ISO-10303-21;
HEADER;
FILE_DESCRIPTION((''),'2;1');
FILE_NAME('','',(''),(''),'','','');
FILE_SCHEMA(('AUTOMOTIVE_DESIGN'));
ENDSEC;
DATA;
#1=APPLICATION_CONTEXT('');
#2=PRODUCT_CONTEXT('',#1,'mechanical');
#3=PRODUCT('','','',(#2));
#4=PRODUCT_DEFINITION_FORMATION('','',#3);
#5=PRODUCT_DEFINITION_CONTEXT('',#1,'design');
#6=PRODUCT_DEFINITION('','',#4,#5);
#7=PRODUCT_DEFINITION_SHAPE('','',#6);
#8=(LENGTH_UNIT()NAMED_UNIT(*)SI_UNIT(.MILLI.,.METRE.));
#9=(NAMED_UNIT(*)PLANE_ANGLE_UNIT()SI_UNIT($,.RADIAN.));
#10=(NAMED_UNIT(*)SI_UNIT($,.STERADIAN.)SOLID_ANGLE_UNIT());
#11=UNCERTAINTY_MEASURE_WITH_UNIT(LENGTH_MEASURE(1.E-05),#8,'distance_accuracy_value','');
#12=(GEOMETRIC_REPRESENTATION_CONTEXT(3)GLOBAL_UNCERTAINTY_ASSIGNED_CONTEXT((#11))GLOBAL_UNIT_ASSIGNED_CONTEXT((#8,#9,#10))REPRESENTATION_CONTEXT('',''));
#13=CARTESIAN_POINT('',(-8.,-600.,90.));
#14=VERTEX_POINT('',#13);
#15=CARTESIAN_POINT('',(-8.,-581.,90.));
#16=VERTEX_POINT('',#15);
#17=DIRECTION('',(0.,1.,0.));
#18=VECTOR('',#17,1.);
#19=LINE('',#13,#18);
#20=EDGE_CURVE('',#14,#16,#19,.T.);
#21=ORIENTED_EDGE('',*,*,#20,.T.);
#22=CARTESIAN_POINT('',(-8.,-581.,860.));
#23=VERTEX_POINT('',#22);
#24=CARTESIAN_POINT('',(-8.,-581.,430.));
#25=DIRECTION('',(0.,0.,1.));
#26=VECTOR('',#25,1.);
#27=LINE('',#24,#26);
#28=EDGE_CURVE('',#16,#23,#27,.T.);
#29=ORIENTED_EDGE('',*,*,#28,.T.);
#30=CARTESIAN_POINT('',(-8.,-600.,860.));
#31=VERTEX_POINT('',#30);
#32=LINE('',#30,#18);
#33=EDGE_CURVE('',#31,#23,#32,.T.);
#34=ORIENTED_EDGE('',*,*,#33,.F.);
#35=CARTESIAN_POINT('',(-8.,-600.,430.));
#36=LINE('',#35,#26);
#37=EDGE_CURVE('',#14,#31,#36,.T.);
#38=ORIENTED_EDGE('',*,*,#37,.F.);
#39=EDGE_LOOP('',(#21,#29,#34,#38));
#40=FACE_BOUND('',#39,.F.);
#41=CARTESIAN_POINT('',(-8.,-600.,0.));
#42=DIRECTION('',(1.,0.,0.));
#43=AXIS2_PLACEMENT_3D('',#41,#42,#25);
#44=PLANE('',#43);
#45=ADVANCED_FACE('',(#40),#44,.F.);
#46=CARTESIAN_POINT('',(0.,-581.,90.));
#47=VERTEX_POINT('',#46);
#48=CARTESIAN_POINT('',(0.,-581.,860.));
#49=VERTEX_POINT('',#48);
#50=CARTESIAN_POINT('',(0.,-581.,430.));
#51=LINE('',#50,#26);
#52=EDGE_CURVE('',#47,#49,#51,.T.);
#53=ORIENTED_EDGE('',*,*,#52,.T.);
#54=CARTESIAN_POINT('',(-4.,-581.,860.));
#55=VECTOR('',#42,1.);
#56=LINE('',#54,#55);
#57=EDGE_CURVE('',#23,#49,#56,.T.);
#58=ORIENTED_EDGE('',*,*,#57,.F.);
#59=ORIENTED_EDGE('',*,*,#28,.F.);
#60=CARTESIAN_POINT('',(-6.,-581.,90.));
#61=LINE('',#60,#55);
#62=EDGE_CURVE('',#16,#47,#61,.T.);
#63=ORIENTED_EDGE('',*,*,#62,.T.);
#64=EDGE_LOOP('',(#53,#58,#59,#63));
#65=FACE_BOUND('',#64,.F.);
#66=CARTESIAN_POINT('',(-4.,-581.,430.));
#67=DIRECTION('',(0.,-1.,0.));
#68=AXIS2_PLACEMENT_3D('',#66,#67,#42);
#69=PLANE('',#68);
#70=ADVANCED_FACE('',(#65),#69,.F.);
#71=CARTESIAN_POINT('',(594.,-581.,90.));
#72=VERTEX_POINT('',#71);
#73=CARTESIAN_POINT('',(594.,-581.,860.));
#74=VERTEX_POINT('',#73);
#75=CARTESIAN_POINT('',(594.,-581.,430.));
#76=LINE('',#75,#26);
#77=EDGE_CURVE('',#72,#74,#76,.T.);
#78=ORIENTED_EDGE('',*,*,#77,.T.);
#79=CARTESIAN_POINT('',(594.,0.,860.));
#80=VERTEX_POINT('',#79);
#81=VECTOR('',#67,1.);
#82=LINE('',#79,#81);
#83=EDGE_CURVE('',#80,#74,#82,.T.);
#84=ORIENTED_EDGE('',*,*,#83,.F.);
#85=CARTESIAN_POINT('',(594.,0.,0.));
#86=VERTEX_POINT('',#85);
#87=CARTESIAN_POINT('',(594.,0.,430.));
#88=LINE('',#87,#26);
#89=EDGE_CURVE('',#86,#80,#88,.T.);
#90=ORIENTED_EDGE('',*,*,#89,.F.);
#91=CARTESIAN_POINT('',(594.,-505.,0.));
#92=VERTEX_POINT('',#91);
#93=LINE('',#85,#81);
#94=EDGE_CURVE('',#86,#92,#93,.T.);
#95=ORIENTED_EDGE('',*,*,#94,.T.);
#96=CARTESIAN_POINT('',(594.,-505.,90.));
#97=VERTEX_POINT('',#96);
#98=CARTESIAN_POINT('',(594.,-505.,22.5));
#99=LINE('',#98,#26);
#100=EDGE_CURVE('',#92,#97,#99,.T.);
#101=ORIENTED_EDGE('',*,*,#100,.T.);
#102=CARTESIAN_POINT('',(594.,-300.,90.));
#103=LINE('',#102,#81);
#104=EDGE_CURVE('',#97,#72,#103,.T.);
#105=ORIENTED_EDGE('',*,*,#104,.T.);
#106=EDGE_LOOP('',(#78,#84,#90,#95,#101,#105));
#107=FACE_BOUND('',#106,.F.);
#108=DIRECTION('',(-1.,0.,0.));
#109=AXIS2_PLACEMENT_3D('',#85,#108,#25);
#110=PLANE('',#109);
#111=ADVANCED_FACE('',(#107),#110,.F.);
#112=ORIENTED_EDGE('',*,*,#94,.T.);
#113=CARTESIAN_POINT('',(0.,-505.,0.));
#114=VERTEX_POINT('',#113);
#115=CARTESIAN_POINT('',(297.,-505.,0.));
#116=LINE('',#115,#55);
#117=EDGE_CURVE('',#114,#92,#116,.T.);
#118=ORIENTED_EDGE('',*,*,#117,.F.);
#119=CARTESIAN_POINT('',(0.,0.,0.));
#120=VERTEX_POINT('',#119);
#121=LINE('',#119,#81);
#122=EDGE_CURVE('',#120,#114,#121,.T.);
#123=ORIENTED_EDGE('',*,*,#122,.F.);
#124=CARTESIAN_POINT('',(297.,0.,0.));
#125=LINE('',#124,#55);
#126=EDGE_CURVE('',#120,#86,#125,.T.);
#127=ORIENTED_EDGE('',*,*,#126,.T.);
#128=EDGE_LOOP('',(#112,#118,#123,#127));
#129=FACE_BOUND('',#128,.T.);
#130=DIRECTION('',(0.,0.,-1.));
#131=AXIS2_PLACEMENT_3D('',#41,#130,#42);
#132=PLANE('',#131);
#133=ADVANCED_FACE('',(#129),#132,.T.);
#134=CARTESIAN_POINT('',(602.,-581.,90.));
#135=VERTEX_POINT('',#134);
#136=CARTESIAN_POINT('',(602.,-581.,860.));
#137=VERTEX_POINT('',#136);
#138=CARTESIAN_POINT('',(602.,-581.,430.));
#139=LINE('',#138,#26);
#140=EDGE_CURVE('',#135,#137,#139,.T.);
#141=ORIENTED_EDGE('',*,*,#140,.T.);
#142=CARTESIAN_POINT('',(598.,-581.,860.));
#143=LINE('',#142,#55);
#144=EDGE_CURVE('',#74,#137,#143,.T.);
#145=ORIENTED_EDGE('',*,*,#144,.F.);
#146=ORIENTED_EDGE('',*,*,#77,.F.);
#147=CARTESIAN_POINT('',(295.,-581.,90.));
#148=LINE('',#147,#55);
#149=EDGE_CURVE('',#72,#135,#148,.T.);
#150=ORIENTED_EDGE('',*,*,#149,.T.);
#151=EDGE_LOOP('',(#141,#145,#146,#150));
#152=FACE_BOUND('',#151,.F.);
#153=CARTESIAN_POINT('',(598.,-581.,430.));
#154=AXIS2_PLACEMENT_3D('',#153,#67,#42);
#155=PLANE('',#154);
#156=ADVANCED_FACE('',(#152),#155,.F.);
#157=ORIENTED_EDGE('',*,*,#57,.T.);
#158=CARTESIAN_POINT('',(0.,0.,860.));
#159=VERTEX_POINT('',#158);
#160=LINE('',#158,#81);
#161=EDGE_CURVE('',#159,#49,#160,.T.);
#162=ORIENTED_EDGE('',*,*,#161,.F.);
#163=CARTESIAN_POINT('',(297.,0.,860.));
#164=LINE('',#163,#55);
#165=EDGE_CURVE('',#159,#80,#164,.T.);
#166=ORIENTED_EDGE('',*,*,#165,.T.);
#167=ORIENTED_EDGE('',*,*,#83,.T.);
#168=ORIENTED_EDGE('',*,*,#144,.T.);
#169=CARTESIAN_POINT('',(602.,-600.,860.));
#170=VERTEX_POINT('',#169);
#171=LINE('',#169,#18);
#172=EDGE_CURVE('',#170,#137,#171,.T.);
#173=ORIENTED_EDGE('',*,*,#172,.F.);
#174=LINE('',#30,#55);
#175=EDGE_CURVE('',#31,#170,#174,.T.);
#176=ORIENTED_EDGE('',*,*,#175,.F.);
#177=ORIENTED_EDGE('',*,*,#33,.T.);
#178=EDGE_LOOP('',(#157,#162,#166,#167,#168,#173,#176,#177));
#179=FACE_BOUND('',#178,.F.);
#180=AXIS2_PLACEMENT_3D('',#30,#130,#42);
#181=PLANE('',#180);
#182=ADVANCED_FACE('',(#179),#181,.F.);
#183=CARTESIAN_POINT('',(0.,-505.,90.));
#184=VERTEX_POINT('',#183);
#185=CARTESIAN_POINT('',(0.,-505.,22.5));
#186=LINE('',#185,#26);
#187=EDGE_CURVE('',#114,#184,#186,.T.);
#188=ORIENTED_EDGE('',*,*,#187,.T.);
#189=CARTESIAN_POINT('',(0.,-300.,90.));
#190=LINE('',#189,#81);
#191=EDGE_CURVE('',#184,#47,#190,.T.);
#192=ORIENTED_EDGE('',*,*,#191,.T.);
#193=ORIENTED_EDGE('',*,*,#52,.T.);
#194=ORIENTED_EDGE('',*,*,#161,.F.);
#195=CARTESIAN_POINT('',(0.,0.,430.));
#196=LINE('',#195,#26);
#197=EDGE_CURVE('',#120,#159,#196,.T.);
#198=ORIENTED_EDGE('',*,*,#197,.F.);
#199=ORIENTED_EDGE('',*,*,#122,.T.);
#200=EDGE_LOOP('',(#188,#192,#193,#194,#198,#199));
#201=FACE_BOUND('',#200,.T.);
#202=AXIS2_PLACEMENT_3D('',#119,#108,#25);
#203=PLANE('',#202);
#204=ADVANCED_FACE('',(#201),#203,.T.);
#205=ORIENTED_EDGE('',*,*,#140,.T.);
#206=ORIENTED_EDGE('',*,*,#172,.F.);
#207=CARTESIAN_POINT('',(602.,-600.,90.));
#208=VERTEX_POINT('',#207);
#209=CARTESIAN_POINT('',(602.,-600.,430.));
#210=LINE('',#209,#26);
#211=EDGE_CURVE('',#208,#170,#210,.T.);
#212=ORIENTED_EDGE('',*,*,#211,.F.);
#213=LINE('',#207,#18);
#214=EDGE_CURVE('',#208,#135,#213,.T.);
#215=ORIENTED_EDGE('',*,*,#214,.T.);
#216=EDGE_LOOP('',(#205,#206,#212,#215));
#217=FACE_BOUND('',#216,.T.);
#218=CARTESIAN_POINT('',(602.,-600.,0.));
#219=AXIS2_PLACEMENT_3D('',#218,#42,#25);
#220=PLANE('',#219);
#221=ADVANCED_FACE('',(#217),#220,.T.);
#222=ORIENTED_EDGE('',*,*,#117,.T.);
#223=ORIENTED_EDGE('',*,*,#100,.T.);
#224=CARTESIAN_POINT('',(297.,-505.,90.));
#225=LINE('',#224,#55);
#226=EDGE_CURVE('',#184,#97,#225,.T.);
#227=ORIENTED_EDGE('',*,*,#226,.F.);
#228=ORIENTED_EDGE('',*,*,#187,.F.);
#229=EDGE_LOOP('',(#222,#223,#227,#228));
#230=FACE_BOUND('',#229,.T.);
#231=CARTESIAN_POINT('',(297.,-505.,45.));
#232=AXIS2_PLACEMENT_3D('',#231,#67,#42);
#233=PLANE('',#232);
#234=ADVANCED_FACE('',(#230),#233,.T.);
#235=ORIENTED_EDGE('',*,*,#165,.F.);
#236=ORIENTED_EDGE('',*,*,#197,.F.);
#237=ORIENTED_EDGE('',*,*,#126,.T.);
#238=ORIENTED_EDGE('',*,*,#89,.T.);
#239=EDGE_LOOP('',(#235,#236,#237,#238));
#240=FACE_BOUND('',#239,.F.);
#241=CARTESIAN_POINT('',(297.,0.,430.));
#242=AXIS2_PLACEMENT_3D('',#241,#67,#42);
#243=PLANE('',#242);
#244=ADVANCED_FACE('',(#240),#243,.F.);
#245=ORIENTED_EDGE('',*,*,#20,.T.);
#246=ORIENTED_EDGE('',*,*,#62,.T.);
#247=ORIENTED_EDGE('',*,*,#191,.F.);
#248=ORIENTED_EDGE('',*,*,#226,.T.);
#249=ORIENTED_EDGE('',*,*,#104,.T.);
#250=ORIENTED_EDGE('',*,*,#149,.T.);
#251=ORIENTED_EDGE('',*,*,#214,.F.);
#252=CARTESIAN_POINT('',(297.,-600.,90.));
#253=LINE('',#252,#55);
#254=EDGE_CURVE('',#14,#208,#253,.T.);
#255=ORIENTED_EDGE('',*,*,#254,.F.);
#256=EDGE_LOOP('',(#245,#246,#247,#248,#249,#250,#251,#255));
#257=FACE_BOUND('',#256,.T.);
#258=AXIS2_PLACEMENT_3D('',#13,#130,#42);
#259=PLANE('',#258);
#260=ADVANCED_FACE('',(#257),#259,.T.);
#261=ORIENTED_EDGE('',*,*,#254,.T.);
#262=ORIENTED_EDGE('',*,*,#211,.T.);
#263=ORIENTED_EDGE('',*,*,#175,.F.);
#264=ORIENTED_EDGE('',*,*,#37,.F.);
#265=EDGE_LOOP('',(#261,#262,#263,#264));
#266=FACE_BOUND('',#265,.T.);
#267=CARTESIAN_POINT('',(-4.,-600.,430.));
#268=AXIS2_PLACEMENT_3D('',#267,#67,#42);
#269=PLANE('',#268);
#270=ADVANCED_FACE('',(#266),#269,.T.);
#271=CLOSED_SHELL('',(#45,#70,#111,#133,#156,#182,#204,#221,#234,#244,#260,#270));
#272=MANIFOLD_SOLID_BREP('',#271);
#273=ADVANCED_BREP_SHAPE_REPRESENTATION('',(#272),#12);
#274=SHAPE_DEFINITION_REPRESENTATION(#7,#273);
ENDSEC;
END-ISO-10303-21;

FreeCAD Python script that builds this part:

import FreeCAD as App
import Part
import Sketcher

V = App.Vector


def add_polygon(sketch, points):
    """Adds a closed chain of lines whose ends are joined by coincident constraints."""
    first, n = sketch.GeometryCount, len(points)
    for a, b in zip(points, points[1:] + points[:1]):
        sketch.addGeometry(Part.LineSegment(App.Vector(*a, 0), App.Vector(*b, 0)), False)
    for i in range(n):
        sketch.addConstraint(Sketcher.Constraint("Coincident", first + i, 2, first + (i + 1) % n, 1))

doc = App.newDocument("Part")
params = doc.addObject("Spreadsheet::Sheet", "Params")
for row, (alias, value) in enumerate([
    ("sketch1_width", "594 mm"),
    ("sketch1_height", "860 mm"),
    ("pad1_length", "600 mm"),
    ("sketch2_width", "8 mm"),
    ("sketch2_height", "860 mm"),
    ("pad2_length", "19 mm"),
    ("sketch3_width", "610 mm"),
    ("sketch3_height", "90 mm"),
    ("pocket1_length", "95 mm"),
], start=1):
    params.set(f"A{row}", alias)
    params.set(f"B{row}", "=" + value)
    params.setAlias(f"B{row}", alias)

body = doc.addObject("PartDesign::Body", "Body")

# Sketch on XZ plane
sketch1 = body.newObject("Sketcher::SketchObject", "Sketch")
sketch1.AttachmentSupport = (doc.getObject("XZ_Plane"), [""])
sketch1.MapMode = "FlatFace"
add_polygon(sketch1, [(0, 860), (0, 0), (594, 0), (594, 860)])  # lines 0-3
sketch1.addConstraint([
    Sketcher.Constraint("Vertical", 0),
    Sketcher.Constraint("Horizontal", 1),
    Sketcher.Constraint("Vertical", 2),
    Sketcher.Constraint("Horizontal", 3),
    Sketcher.Constraint("Coincident", 0, 2, -1, 1),
    Sketcher.Constraint("DistanceX", 1, 1, 1, 2, 594.0),
    Sketcher.Constraint("DistanceY", 0, 2, 0, 1, 860.0),
])
sketch1.setExpression("Constraints[9]", "Params.sketch1_width")
sketch1.setExpression("Constraints[10]", "Params.sketch1_height")
pad1 = body.newObject("PartDesign::Pad", "Pad")
pad1.Profile = sketch1
pad1.setExpression("Length", "Params.pad1_length")

# Sketch on XZ plane
sketch2 = body.newObject("Sketcher::SketchObject", "Sketch001")
sketch2.AttachmentSupport = (doc.getObject("XZ_Plane"), [""])
sketch2.MapMode = "FlatFace"
sketch2.AttachmentOffset = App.Placement(V(0, 0, 600), App.Rotation())
add_polygon(sketch2, [(-8, 860), (-8, 0), (0, 0), (0, 860)])  # lines 0-3
add_polygon(sketch2, [(594, 860), (594, 0), (602, 0), (602, 860)])  # lines 4-7
sketch2.addConstraint([
    Sketcher.Constraint("Vertical", 0),
    Sketcher.Constraint("Horizontal", 1),
    Sketcher.Constraint("Vertical", 2),
    Sketcher.Constraint("Horizontal", 3),
    Sketcher.Constraint("Vertical", 4),
    Sketcher.Constraint("Horizontal", 5),
    Sketcher.Constraint("Vertical", 6),
    Sketcher.Constraint("Horizontal", 7),
    Sketcher.Constraint("Coincident", 1, 2, -1, 1),
    Sketcher.Constraint("PointOnObject", 4, 2, -1),
    Sketcher.Constraint("Horizontal", 3, 2, 6, 2),
    Sketcher.Constraint("Equal", 3, 5),
    Sketcher.Constraint("DistanceX", 1, 1, 1, 2, 8.0),
    Sketcher.Constraint("DistanceY", 0, 2, 0, 1, 860.0),
    Sketcher.Constraint("DistanceX", -1, 1, 4, 2, 594.0),
])
sketch2.setExpression("Constraints[20]", "Params.sketch2_width")
sketch2.setExpression("Constraints[21]", "Params.sketch2_height")
pad2 = body.newObject("PartDesign::Pad", "Pad001")
pad2.Profile = sketch2
pad2.setExpression("Length", "Params.pad2_length")
pad2.Reversed = True

# Sketch on XZ plane
sketch3 = body.newObject("Sketcher::SketchObject", "Sketch002")
sketch3.AttachmentSupport = (doc.getObject("XZ_Plane"), [""])
sketch3.MapMode = "FlatFace"
sketch3.AttachmentOffset = App.Placement(V(0, 0, 600), App.Rotation())
add_polygon(sketch3, [(-8, 90), (-8, 0), (602, 0), (602, 90)])  # lines 0-3
sketch3.addConstraint([
    Sketcher.Constraint("Vertical", 0),
    Sketcher.Constraint("Horizontal", 1),
    Sketcher.Constraint("Vertical", 2),
    Sketcher.Constraint("Horizontal", 3),
    Sketcher.Constraint("PointOnObject", 0, 2, -1),
    Sketcher.Constraint("DistanceX", 1, 1, 1, 2, 610.0),
    Sketcher.Constraint("DistanceY", 0, 2, 0, 1, 90.0),
    Sketcher.Constraint("DistanceX", 0, 2, -1, 1, 8.0),
])
sketch3.setExpression("Constraints[9]", "Params.sketch3_width")
sketch3.setExpression("Constraints[10]", "Params.sketch3_height")
pocket1 = body.newObject("PartDesign::Pocket", "Pocket")
pocket1.Profile = sketch3
pocket1.setExpression("Length", "Params.pocket1_length")

doc.recompute()
